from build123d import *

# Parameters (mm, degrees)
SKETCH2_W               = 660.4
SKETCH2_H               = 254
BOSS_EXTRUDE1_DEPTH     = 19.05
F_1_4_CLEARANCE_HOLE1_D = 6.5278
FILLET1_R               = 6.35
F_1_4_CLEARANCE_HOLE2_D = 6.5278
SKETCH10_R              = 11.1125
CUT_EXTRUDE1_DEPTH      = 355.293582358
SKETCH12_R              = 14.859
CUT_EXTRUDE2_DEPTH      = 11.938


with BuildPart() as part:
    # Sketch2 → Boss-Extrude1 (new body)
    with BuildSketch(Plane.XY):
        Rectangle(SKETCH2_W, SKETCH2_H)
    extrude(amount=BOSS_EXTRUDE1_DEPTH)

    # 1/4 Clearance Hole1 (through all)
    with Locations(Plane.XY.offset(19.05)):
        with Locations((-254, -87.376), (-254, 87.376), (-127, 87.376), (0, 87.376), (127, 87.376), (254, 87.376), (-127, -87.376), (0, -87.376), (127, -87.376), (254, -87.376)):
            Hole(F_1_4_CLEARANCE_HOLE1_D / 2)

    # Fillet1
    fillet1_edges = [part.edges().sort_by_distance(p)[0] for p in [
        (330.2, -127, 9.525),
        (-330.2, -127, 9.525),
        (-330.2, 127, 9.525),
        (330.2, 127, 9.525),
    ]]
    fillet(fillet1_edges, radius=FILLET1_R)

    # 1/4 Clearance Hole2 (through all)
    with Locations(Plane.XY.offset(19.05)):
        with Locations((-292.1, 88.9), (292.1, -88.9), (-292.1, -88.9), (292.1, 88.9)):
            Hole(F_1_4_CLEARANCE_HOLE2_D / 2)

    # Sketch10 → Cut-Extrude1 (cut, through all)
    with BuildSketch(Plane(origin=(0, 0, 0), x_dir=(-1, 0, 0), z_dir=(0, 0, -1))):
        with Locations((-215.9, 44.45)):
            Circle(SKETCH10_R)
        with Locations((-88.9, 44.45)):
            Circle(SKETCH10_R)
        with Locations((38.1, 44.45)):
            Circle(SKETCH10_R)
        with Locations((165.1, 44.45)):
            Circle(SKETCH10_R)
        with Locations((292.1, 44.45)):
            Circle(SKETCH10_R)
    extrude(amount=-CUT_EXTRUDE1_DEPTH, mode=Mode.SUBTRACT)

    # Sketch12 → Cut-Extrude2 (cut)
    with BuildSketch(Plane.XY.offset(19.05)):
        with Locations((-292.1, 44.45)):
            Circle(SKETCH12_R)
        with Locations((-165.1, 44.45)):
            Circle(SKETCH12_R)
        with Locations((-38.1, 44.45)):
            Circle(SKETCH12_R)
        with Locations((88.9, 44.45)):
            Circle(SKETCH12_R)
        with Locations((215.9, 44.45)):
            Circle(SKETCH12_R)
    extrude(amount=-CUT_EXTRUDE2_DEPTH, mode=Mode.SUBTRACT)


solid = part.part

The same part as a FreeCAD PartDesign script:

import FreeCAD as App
import Part
import Sketcher
Q = App.Units.Quantity


def edges_at(feature, points):
    """Names of the edges that pass closest to the given points."""
    edges = feature.Shape.Edges
    near = lambda p: min(range(len(edges)), key=lambda i: edges[i].distToShape(Part.Vertex(*p))[0])
    return sorted({f"Edge{near(p) + 1}" for p in points})


def add_polygon(sketch, points):
    """Adds a closed chain of lines whose ends are joined by coincident constraints."""
    first, n = sketch.GeometryCount, len(points)
    for a, b in zip(points, points[1:] + points[:1]):
        sketch.addGeometry(Part.LineSegment(App.Vector(*a, 0), App.Vector(*b, 0)), False)
    for i in range(n):
        sketch.addConstraint(Sketcher.Constraint("Coincident", first + i, 2, first + (i + 1) % n, 1))

doc = App.newDocument("Part")
body = doc.addObject("PartDesign::Body", "Body")

# Sketch on XY plane
sketch1 = body.newObject("Sketcher::SketchObject", "Sketch")
sketch1.AttachmentSupport = (doc.getObject("XY_Plane"), [""])
sketch1.MapMode = "FlatFace"
add_polygon(sketch1, [(-330, 127), (-330, -127), (330, -127), (330, 127)])  # lines 0-3
sketch1.addConstraint(Sketcher.Constraint("Vertical", 0))
sketch1.addConstraint(Sketcher.Constraint("Horizontal", 1))
sketch1.addConstraint(Sketcher.Constraint("Vertical", 2))
sketch1.addConstraint(Sketcher.Constraint("Horizontal", 3))
sketch1.addConstraint(Sketcher.Constraint("Symmetric", 0, 2, 2, 2, -1, 1))
sketch1.addConstraint(Sketcher.Constraint("DistanceX", 1, 1, 1, 2, Q("26 in")))
sketch1.addConstraint(Sketcher.Constraint("DistanceY", 0, 2, 0, 1, Q("10 in")))
pad1 = body.newObject("PartDesign::Pad", "Pad")
pad1.Profile = sketch1
pad1.Length = Q("0.75 in")

# Sketch on XY plane
sketch2 = body.newObject("Sketcher::SketchObject", "Sketch001")
sketch2.AttachmentSupport = (doc.getObject("XY_Plane"), [""])
sketch2.MapMode = "FlatFace"
sketch2.AttachmentOffset = App.Placement(App.Vector(0, 0, 0.75 * 25.4), App.Rotation())
sketch2.addGeometry(Part.Circle(App.Vector(-254, -87.4, 0), App.Vector(0, 0, 1), 3.3), False)
sketch2.addGeometry(Part.Circle(App.Vector(-254, 87.4, 0), App.Vector(0, 0, 1), 3.3), False)
sketch2.addGeometry(Part.Circle(App.Vector(-127, 87.4, 0), App.Vector(0, 0, 1), 3.3), False)
sketch2.addGeometry(Part.Circle(App.Vector(0, 87.4, 0), App.Vector(0, 0, 1), 3.3), False)
sketch2.addGeometry(Part.Circle(App.Vector(127, 87.4, 0), App.Vector(0, 0, 1), 3.3), False)
sketch2.addGeometry(Part.Circle(App.Vector(254, 87.4, 0), App.Vector(0, 0, 1), 3.3), False)
sketch2.addGeometry(Part.Circle(App.Vector(-127, -87.4, 0), App.Vector(0, 0, 1), 3.3), False)
sketch2.addGeometry(Part.Circle(App.Vector(0, -87.4, 0), App.Vector(0, 0, 1), 3.3), False)
sketch2.addGeometry(Part.Circle(App.Vector(127, -87.4, 0), App.Vector(0, 0, 1), 3.3), False)
sketch2.addGeometry(Part.Circle(App.Vector(254, -87.4, 0), App.Vector(0, 0, 1), 3.3), False)
sketch2.addConstraint(Sketcher.Constraint("Equal", 0, 1))
sketch2.addConstraint(Sketcher.Constraint("Equal", 1, 2))
sketch2.addConstraint(Sketcher.Constraint("Equal", 2, 3))
sketch2.addConstraint(Sketcher.Constraint("Equal", 3, 4))
sketch2.addConstraint(Sketcher.Constraint("Equal", 4, 5))
sketch2.addConstraint(Sketcher.Constraint("Equal", 5, 6))
sketch2.addConstraint(Sketcher.Constraint("Equal", 6, 7))
sketch2.addConstraint(Sketcher.Constraint("Equal", 7, 8))
sketch2.addConstraint(Sketcher.Constraint("Equal", 8, 9))
sketch2.addConstraint(Sketcher.Constraint("Symmetric", 0, 3, 5, 3, -1, 1))
sketch2.addConstraint(Sketcher.Constraint("Symmetric", 4, 3, 6, 3, -1, 1))
sketch2.addConstraint(Sketcher.Constraint("Symmetric", 3, 3, 7, 3, -1, 1))
sketch2.addConstraint(Sketcher.Constraint("Symmetric", 2, 3, 8, 3, -1, 1))
sketch2.addConstraint(Sketcher.Constraint("Symmetric", 1, 3, 9, 3, -1, 1))
sketch2.addConstraint(Sketcher.Constraint("Symmetric", 2, 3, 4, 3, -2))
sketch2.addConstraint(Sketcher.Constraint("Symmetric", 1, 3, 5, 3, -2))
sketch2.addConstraint(Sketcher.Constraint("PointOnObject", 3, 3, -2))
sketch2.addConstraint(Sketcher.Constraint("Horizontal", 1, 3, 2, 3))
sketch2.addConstraint(Sketcher.Constraint("Horizontal", 2, 3, 3, 3))
sketch2.addConstraint(Sketcher.Constraint("Diameter", 0, Q("0.257 in")))
sketch2.addConstraint(Sketcher.Constraint("DistanceX", 0, 3, -1, 1, Q("10 in")))
sketch2.addConstraint(Sketcher.Constraint("DistanceX", 2, 3, -1, 1, Q("5 in")))
sketch2.addConstraint(Sketcher.Constraint("DistanceY", 0, 3, -1, 1, Q("3.44 in")))
doc.recompute()
hole = body.newObject("PartDesign::Hole", "Hole")
hole.Profile = sketch2
hole.ThreadType = "None"
hole.Diameter = Q("0.257 in")
hole.DepthType = "ThroughAll"
doc.recompute()

fillet = body.newObject("PartDesign::Fillet", "Fillet")
fillet.Base = (hole, edges_at(hole, [
    (330.2, -127, 9.525),
    (-330.2, -127, 9.525),
    (-330.2, 127, 9.525),
    (330.2, 127, 9.525),
]))
fillet.Radius = Q("0.25 in")

# Sketch on XY plane
sketch3 = body.newObject("Sketcher::SketchObject", "Sketch002")
sketch3.AttachmentSupport = (doc.getObject("XY_Plane"), [""])
sketch3.MapMode = "FlatFace"
sketch3.AttachmentOffset = App.Placement(App.Vector(0, 0, 0.75 * 25.4), App.Rotation())
sketch3.addGeometry(Part.Circle(App.Vector(-292.1, 88.9, 0), App.Vector(0, 0, 1), 3.3), False)
sketch3.addGeometry(Part.Circle(App.Vector(292.1, -88.9, 0), App.Vector(0, 0, 1), 3.3), False)
sketch3.addGeometry(Part.Circle(App.Vector(-292.1, -88.9, 0), App.Vector(0, 0, 1), 3.3), False)
sketch3.addGeometry(Part.Circle(App.Vector(292.1, 88.9, 0), App.Vector(0, 0, 1), 3.3), False)
sketch3.addConstraint(Sketcher.Constraint("Equal", 0, 1))
sketch3.addConstraint(Sketcher.Constraint("Equal", 1, 2))
sketch3.addConstraint(Sketcher.Constraint("Equal", 2, 3))
sketch3.addConstraint(Sketcher.Constraint("Symmetric", 0, 3, 1, 3, -1, 1))
sketch3.addConstraint(Sketcher.Constraint("Symmetric", 2, 3, 3, 3, -1, 1))
sketch3.addConstraint(Sketcher.Constraint("Symmetric", 1, 3, 2, 3, -2))
sketch3.addConstraint(Sketcher.Constraint("Diameter", 0, Q("0.257 in")))
sketch3.addConstraint(Sketcher.Constraint("DistanceX", 0, 3, 1, 3, Q("23 in")))
sketch3.addConstraint(Sketcher.Constraint("DistanceY", 1, 3, 0, 3, Q("7 in")))
doc.recompute()
hole2 = body.newObject("PartDesign::Hole", "Hole001")
hole2.Profile = sketch3
hole2.ThreadType = "None"
hole2.Diameter = Q("0.257 in")
hole2.DepthType = "ThroughAll"

# Sketch on XY plane
sketch4 = body.newObject("Sketcher::SketchObject", "Sketch003")
sketch4.AttachmentSupport = (doc.getObject("XY_Plane"), [""])
sketch4.MapMode = "FlatFace"
sketch4.addGeometry(Part.Circle(App.Vector(216, 44, 0), App.Vector(0, 0, 1), 11), False)
sketch4.addGeometry(Part.Circle(App.Vector(89, 44, 0), App.Vector(0, 0, 1), 11), False)
sketch4.addGeometry(Part.Circle(App.Vector(-38, 44, 0), App.Vector(0, 0, 1), 11), False)
sketch4.addGeometry(Part.Circle(App.Vector(-165, 44, 0), App.Vector(0, 0, 1), 11), False)
sketch4.addGeometry(Part.Circle(App.Vector(-292, 44, 0), App.Vector(0, 0, 1), 11), False)
sketch4.addConstraint(Sketcher.Constraint("Equal", 0, 1))
sketch4.addConstraint(Sketcher.Constraint("Equal", 1, 2))
sketch4.addConstraint(Sketcher.Constraint("Equal", 2, 3))
sketch4.addConstraint(Sketcher.Constraint("Equal", 3, 4))
sketch4.addConstraint(Sketcher.Constraint("Horizontal", 0, 3, 1, 3))
sketch4.addConstraint(Sketcher.Constraint("Horizontal", 1, 3, 2, 3))
sketch4.addConstraint(Sketcher.Constraint("Horizontal", 2, 3, 3, 3))
sketch4.addConstraint(Sketcher.Constraint("Horizontal", 3, 3, 4, 3))
sketch4.addConstraint(Sketcher.Constraint("Diameter", 0, Q("0.875 in")))
sketch4.addConstraint(Sketcher.Constraint("DistanceX", 1, 3, 0, 3, Q("5 in")))
sketch4.addConstraint(Sketcher.Constraint("DistanceX", 2, 3, 1, 3, Q("5 in")))
sketch4.addConstraint(Sketcher.Constraint("DistanceX", 3, 3, 2, 3, Q("5 in")))
sketch4.addConstraint(Sketcher.Constraint("DistanceX", 4, 3, 3, 3, Q("5 in")))
sketch4.addConstraint(Sketcher.Constraint("DistanceX", -1, 1, 0, 3, Q("8.5 in")))
sketch4.addConstraint(Sketcher.Constraint("DistanceY", -1, 1, 0, 3, Q("1.75 in")))
pocket1 = body.newObject("PartDesign::Pocket", "Pocket")
pocket1.Profile = sketch4
pocket1.Type = "ThroughAll"
pocket1.Reversed = True

# Sketch on XY plane
sketch5 = body.newObject("Sketcher::SketchObject", "Sketch004")
sketch5.AttachmentSupport = (doc.getObject("XY_Plane"), [""])
sketch5.MapMode = "FlatFace"
sketch5.AttachmentOffset = App.Placement(App.Vector(0, 0, 0.75 * 25.4), App.Rotation())
sketch5.addGeometry(Part.Circle(App.Vector(-292, 44, 0), App.Vector(0, 0, 1), 15), False)
sketch5.addGeometry(Part.Circle(App.Vector(-165, 44, 0), App.Vector(0, 0, 1), 15), False)
sketch5.addGeometry(Part.Circle(App.Vector(-38, 44, 0), App.Vector(0, 0, 1), 15), False)
sketch5.addGeometry(Part.Circle(App.Vector(89, 44, 0), App.Vector(0, 0, 1), 15), False)
sketch5.addGeometry(Part.Circle(App.Vector(216, 44, 0), App.Vector(0, 0, 1), 15), False)
sketch5.addConstraint(Sketcher.Constraint("Equal", 0, 1))
sketch5.addConstraint(Sketcher.Constraint("Equal", 1, 2))
sketch5.addConstraint(Sketcher.Constraint("Equal", 2, 3))
sketch5.addConstraint(Sketcher.Constraint("Equal", 3, 4))
sketch5.addConstraint(Sketcher.Constraint("Horizontal", 0, 3, 1, 3))
sketch5.addConstraint(Sketcher.Constraint("Horizontal", 1, 3, 2, 3))
sketch5.addConstraint(Sketcher.Constraint("Horizontal", 2, 3, 3, 3))
sketch5.addConstraint(Sketcher.Constraint("Horizontal", 3, 3, 4, 3))
sketch5.addConstraint(Sketcher.Constraint("Diameter", 0, Q("1.17 in")))
sketch5.addConstraint(Sketcher.Constraint("DistanceX", 0, 3, 1, 3, Q("5 in")))
sketch5.addConstraint(Sketcher.Constraint("DistanceX", 1, 3, 2, 3, Q("5 in")))
sketch5.addConstraint(Sketcher.Constraint("DistanceX", 2, 3, 3, 3, Q("5 in")))
sketch5.addConstraint(Sketcher.Constraint("DistanceX", 3, 3, 4, 3, Q("5 in")))
sketch5.addConstraint(Sketcher.Constraint("DistanceX", 0, 3, -1, 1, Q("11.5 in")))
sketch5.addConstraint(Sketcher.Constraint("DistanceY", -1, 1, 0, 3, Q("1.75 in")))
pocket2 = body.newObject("PartDesign::Pocket", "Pocket001")
pocket2.Profile = sketch5
pocket2.Length = Q("0.47 in")

doc.recompute()
